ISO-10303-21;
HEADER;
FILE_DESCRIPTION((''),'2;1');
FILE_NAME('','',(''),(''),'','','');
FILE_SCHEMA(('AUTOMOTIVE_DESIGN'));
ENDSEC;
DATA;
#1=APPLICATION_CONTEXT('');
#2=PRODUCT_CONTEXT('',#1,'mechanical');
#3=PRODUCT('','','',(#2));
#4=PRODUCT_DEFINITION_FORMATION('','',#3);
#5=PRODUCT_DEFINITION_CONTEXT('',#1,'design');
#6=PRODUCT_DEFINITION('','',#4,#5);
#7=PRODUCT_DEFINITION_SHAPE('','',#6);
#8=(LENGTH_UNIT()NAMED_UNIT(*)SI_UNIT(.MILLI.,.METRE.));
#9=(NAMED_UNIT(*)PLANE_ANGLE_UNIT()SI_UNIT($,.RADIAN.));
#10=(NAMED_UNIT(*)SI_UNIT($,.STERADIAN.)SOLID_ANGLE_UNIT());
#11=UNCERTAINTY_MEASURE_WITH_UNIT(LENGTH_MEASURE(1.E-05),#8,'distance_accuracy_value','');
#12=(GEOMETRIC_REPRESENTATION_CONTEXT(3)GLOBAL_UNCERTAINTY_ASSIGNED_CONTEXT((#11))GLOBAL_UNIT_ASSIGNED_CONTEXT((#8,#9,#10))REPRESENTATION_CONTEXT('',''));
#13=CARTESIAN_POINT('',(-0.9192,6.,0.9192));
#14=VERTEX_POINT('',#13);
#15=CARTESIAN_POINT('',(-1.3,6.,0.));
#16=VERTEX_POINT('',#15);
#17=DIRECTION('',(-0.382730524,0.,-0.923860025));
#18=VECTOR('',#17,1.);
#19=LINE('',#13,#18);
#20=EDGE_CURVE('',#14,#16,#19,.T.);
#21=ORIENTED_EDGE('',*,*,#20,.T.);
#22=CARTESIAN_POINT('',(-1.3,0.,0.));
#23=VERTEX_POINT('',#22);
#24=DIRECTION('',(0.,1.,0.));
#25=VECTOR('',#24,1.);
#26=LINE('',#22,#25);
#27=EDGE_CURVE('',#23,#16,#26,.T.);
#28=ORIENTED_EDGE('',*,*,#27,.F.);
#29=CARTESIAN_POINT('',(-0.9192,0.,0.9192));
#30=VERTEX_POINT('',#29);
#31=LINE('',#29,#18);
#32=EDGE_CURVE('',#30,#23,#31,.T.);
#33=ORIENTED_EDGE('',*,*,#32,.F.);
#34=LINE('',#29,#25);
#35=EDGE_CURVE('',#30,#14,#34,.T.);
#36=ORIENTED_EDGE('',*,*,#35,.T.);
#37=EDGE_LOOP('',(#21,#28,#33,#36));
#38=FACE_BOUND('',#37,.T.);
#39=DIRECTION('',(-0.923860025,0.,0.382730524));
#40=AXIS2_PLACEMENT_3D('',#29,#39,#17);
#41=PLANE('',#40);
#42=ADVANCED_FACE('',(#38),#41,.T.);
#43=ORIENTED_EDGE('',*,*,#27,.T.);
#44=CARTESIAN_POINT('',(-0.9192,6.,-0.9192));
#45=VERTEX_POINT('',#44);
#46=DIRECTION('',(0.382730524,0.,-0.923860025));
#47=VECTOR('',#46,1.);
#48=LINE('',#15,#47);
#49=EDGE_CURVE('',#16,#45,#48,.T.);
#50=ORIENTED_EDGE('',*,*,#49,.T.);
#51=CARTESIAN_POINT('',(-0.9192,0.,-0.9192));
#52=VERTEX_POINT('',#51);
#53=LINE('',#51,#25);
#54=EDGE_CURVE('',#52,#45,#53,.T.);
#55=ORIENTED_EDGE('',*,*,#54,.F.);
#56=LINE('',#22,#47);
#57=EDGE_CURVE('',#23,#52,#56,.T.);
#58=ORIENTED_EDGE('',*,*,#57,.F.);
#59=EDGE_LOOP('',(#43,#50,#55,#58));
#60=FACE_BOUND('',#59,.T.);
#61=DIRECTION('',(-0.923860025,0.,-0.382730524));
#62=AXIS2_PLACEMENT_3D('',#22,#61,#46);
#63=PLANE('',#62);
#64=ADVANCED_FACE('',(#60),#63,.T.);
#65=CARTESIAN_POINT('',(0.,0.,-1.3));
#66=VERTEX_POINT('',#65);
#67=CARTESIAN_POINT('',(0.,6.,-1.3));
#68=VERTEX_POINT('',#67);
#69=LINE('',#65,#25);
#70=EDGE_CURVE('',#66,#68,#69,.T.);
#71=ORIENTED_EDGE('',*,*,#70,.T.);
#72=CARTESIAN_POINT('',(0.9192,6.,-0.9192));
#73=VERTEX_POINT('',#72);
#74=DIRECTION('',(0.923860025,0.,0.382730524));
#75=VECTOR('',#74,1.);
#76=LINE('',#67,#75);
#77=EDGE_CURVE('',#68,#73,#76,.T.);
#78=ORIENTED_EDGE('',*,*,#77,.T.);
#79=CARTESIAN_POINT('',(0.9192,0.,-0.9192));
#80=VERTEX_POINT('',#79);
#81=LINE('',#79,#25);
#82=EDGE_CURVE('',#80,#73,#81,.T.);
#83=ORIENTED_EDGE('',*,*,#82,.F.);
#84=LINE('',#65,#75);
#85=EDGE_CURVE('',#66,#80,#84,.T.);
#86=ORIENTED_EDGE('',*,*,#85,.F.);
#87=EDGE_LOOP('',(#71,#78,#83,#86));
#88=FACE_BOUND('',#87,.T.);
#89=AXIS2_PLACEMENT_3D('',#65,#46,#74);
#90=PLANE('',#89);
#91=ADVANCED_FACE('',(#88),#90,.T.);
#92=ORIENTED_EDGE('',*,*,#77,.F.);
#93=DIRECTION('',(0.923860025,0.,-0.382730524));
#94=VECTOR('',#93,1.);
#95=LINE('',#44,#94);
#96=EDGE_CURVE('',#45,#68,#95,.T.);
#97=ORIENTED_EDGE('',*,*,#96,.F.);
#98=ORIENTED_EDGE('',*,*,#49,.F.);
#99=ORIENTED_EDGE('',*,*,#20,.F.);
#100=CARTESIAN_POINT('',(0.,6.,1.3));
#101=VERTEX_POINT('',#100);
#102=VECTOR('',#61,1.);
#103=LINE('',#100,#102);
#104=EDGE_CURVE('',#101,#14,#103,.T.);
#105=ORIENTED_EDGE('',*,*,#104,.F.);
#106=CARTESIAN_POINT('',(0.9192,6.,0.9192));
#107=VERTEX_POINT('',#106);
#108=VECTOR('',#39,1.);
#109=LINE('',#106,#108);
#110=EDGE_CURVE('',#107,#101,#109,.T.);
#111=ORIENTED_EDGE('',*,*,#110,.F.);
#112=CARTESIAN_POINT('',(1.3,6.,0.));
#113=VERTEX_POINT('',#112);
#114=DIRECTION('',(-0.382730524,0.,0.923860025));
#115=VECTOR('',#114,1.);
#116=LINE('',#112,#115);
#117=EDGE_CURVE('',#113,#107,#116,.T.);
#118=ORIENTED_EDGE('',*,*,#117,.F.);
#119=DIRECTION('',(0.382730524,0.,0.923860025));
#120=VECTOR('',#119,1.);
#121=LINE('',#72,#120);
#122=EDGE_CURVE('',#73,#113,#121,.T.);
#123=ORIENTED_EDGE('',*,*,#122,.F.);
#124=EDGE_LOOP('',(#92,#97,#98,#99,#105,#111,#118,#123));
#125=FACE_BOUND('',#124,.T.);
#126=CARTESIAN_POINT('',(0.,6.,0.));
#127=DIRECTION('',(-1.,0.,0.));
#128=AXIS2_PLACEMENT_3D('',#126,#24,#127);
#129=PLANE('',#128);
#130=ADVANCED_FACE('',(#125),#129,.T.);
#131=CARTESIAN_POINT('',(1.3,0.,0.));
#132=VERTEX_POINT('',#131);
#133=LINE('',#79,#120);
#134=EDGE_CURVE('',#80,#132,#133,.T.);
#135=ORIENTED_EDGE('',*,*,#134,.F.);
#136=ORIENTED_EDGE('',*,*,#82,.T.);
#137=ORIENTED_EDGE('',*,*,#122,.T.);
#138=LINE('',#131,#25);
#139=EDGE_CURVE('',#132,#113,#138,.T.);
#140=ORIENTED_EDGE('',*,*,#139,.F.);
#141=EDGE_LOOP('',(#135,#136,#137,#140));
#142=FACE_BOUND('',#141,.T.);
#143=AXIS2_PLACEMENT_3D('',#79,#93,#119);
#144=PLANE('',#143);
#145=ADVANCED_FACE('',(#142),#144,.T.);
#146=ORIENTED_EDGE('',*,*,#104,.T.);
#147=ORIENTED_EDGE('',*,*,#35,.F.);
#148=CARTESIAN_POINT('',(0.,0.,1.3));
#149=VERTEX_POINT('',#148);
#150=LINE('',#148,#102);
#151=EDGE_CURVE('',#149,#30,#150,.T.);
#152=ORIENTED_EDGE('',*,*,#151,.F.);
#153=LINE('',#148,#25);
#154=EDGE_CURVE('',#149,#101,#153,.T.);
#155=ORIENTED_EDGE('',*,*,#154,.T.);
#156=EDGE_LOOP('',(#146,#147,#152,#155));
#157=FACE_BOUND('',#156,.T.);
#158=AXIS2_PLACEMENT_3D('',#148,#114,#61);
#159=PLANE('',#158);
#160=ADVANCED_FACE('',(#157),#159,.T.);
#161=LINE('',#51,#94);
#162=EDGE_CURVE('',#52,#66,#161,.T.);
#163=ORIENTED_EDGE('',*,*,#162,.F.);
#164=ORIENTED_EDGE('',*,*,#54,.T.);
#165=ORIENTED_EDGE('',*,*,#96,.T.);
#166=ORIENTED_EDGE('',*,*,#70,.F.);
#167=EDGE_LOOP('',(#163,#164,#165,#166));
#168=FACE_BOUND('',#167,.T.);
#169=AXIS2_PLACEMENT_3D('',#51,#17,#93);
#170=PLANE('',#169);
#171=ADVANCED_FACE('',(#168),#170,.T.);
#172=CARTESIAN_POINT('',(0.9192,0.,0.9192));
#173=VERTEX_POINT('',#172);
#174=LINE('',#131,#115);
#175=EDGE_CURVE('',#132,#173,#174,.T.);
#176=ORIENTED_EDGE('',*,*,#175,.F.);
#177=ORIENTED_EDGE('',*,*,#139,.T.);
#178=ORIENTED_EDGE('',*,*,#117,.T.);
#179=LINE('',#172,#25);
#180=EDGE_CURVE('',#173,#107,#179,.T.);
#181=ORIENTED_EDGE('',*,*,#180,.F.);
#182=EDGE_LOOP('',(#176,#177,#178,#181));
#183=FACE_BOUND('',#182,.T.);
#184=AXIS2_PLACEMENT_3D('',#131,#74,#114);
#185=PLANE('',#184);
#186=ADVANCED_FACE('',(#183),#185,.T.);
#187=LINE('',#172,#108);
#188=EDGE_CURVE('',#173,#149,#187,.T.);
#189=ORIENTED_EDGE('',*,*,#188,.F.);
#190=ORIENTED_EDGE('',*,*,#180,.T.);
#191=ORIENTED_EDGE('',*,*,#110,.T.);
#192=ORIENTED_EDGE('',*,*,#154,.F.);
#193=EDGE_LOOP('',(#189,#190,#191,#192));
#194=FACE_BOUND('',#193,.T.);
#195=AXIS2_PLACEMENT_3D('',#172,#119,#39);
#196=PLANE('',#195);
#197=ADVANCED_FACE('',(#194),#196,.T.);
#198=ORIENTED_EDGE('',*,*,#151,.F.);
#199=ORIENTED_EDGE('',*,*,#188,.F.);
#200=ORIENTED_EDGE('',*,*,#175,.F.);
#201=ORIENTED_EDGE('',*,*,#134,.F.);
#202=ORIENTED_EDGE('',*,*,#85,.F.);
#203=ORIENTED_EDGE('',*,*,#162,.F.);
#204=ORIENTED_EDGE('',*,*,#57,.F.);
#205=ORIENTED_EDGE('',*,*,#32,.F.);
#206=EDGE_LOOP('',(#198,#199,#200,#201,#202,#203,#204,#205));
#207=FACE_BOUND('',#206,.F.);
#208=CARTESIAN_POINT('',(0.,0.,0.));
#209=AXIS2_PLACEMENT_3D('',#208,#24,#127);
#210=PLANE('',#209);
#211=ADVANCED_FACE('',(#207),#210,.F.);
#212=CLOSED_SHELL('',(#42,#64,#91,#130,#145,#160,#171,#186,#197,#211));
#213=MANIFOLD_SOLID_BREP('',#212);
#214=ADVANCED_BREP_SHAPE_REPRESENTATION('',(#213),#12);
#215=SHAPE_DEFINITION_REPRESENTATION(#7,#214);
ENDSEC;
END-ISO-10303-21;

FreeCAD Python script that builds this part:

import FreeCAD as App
import Part
import Sketcher

doc = App.newDocument("Part")
body = doc.addObject("PartDesign::Body", "Body")

# Sketch on XZ plane
sketch1 = doc.addObject("Sketcher::SketchObject", "Sketch")
body.addObject(sketch1)
sketch1.AttachmentSupport = (doc.XZ_Plane, [""])
sketch1.MapMode = "FlatFace"
sketch1.addGeometry([
    Part.LineSegment(App.Vector(-0.9, -0.9, 0), App.Vector(-1.3, 0, 0)),  # 0
    Part.LineSegment(App.Vector(-1.3, 0, 0), App.Vector(-0.9, 0.9, 0)),  # 1
    Part.LineSegment(App.Vector(-0.9, 0.9, 0), App.Vector(0, 1.3, 0)),  # 2
    Part.LineSegment(App.Vector(0, 1.3, 0), App.Vector(0.9, 0.9, 0)),  # 3
    Part.LineSegment(App.Vector(0.9, 0.9, 0), App.Vector(1.3, 0, 0)),  # 4
    Part.LineSegment(App.Vector(1.3, 0, 0), App.Vector(0.9, -0.9, 0)),  # 5
    Part.LineSegment(App.Vector(0.9, -0.9, 0), App.Vector(0, -1.3, 0)),  # 6
    Part.LineSegment(App.Vector(0, -1.3, 0), App.Vector(-0.9, -0.9, 0)),  # 7
], False)
sketch1.addConstraint([
    Sketcher.Constraint("Coincident", 0, 2, 1, 1),
    Sketcher.Constraint("Coincident", 1, 2, 2, 1),
    Sketcher.Constraint("Coincident", 2, 2, 3, 1),
    Sketcher.Constraint("Coincident", 3, 2, 4, 1),
    Sketcher.Constraint("Coincident", 4, 2, 5, 1),
    Sketcher.Constraint("Coincident", 5, 2, 6, 1),
    Sketcher.Constraint("Coincident", 6, 2, 7, 1),
    Sketcher.Constraint("Coincident", 7, 2, 0, 1),
    Sketcher.Constraint("Symmetric", 0, 2, 4, 2, -1, 1),
    Sketcher.Constraint("Symmetric", 1, 2, 5, 2, -1, 1),
    Sketcher.Constraint("Symmetric", 2, 2, 6, 2, -1, 1),
    Sketcher.Constraint("Symmetric", 3, 2, 7, 2, -1, 1),
    Sketcher.Constraint("Symmetric", 1, 2, 3, 2, -2),
    Sketcher.Constraint("PointOnObject", 0, 2, -1),
    Sketcher.Constraint("PointOnObject", 2, 2, -2),
    Sketcher.Constraint("Perpendicular", 0, 2),
    Sketcher.Constraint("Equal", 1, 2),
    Sketcher.Constraint("DistanceX", 0, 2, 4, 2, 2.6),
    Sketcher.Constraint("Distance", 0, 0.995),
])
pad1 = doc.addObject("PartDesign::Pad", "Pad")
body.addObject(pad1)
pad1.Profile = sketch1
pad1.Length = 6
pad1.Reversed = True

doc.recompute()
